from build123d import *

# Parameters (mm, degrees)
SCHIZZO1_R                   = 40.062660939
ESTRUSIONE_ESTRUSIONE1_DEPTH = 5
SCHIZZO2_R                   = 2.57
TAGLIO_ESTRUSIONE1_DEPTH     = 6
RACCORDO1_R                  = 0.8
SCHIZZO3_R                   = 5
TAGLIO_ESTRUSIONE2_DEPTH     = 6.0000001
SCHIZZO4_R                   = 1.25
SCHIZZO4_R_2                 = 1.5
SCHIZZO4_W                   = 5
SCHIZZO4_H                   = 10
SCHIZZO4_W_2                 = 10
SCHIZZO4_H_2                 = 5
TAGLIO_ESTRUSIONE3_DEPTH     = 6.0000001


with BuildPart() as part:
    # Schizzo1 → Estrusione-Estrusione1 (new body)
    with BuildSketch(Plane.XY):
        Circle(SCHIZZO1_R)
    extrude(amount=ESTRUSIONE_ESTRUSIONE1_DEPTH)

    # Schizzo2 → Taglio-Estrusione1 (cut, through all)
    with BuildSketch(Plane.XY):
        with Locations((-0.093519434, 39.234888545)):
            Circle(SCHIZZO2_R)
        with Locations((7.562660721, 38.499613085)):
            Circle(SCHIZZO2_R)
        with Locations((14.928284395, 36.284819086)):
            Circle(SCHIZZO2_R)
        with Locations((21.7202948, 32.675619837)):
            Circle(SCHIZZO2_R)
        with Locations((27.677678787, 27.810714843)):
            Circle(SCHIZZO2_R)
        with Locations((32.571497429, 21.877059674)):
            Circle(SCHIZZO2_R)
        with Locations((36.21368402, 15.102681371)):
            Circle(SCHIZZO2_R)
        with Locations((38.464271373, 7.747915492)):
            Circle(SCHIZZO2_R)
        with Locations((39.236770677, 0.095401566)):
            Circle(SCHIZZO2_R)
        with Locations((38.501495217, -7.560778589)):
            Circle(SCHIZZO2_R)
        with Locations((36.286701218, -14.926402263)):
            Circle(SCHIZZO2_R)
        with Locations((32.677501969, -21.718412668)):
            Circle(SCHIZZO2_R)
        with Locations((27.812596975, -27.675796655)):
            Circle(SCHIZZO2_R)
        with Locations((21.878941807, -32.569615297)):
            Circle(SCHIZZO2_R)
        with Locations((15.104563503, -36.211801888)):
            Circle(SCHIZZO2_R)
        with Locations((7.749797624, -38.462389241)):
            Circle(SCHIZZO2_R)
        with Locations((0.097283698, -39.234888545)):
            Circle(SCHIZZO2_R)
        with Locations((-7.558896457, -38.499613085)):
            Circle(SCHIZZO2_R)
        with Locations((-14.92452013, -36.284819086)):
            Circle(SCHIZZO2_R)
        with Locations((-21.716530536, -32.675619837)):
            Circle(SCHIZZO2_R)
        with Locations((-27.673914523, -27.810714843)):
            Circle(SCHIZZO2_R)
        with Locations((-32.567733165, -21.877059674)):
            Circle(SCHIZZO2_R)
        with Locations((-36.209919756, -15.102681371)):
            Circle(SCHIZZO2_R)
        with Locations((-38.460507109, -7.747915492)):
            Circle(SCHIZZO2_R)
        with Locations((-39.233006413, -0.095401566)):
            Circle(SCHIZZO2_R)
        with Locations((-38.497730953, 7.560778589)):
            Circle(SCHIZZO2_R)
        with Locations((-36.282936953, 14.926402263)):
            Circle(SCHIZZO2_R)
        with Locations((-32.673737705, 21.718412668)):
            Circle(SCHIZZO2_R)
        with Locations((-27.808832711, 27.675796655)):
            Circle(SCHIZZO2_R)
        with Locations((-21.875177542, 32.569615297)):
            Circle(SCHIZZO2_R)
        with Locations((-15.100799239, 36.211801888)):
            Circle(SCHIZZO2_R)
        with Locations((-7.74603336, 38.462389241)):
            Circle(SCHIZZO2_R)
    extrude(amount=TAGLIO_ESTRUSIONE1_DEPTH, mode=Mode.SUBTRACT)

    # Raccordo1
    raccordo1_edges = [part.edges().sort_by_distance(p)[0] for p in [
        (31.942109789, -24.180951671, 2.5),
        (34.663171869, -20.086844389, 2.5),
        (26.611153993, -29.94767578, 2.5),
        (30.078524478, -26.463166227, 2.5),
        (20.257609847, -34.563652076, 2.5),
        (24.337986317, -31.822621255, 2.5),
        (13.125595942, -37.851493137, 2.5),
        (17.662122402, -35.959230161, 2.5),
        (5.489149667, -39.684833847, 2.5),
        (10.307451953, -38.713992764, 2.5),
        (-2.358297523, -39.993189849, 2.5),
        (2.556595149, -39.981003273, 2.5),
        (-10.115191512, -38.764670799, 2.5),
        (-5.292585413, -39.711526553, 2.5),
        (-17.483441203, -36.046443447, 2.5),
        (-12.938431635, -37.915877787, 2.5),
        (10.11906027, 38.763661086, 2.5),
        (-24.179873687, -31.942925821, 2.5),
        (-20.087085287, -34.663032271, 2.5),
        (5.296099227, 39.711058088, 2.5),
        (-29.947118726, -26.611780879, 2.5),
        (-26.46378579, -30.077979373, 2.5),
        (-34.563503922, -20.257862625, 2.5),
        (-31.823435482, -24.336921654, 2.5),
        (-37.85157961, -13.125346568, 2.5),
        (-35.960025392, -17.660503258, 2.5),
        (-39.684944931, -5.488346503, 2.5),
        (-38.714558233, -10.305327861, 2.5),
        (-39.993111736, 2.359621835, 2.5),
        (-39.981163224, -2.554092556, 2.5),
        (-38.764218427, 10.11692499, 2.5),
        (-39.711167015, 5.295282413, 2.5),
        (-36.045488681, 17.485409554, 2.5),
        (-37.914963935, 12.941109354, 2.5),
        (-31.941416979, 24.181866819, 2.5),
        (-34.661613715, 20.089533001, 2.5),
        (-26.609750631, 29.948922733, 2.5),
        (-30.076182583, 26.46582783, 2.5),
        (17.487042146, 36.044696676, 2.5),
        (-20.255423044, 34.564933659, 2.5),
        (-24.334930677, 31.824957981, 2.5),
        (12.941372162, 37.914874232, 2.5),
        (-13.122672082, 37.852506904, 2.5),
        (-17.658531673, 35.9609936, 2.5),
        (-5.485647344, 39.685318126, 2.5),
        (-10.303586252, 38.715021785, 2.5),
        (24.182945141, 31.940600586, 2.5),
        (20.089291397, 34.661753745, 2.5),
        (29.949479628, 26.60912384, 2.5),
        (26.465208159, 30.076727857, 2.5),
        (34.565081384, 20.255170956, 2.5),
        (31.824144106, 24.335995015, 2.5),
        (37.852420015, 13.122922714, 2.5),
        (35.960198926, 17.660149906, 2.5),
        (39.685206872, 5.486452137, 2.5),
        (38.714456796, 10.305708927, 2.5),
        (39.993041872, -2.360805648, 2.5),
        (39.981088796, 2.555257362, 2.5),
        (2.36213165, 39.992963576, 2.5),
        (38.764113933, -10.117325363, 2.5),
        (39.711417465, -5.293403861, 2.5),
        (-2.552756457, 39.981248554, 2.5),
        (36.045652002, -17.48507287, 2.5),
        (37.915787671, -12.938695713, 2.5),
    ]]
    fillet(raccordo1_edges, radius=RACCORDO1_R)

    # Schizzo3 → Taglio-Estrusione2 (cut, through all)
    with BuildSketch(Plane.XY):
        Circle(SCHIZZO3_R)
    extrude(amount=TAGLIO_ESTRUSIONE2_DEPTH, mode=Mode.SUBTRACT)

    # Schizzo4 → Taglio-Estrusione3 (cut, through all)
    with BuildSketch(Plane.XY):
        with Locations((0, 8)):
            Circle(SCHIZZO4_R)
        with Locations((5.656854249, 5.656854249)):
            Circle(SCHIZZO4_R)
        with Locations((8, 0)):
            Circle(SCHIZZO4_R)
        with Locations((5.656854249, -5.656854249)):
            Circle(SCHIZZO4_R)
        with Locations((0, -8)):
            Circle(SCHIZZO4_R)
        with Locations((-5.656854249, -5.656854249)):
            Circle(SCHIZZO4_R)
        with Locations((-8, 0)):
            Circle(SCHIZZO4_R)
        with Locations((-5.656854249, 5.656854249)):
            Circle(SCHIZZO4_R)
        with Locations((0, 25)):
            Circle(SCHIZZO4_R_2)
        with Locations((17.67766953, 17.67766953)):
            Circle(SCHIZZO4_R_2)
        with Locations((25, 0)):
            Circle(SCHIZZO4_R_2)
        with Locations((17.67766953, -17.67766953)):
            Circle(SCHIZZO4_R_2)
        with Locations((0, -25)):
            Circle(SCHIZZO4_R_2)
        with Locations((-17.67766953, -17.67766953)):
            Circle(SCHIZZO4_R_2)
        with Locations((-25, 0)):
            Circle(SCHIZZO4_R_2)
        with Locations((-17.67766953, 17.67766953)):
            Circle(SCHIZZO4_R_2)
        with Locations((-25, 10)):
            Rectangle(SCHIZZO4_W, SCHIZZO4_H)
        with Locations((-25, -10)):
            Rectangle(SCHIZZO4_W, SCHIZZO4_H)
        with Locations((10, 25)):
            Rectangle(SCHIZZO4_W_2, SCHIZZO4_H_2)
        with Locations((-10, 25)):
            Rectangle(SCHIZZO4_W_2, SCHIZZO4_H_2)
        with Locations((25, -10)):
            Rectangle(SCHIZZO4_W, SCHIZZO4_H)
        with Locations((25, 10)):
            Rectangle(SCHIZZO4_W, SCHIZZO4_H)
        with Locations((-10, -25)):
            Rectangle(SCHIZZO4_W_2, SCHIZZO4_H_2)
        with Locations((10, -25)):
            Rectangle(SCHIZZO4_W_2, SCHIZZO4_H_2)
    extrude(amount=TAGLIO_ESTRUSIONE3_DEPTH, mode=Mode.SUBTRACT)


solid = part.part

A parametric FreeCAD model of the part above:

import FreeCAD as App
import Part
import Sketcher
from FreeCAD import Vector


def edges_at(feature, points):
    """Names of the edges that pass closest to the given points."""
    edges = feature.Shape.Edges
    near = lambda p: min(range(len(edges)), key=lambda i: edges[i].distToShape(Part.Vertex(*p))[0])
    return sorted({f"Edge{near(p) + 1}" for p in points})


def add_polygon(sketch, points):
    """Adds a closed chain of lines whose ends are joined by coincident constraints."""
    first, n = sketch.GeometryCount, len(points)
    for a, b in zip(points, points[1:] + points[:1]):
        sketch.addGeometry(Part.LineSegment(App.Vector(*a, 0), App.Vector(*b, 0)), False)
    for i in range(n):
        sketch.addConstraint(Sketcher.Constraint("Coincident", first + i, 2, first + (i + 1) % n, 1))

doc = App.newDocument("Part")
body = doc.addObject("PartDesign::Body", "Body")

# Sketch on XY plane
sketch1 = body.newObject("Sketcher::SketchObject", "Sketch")
sketch1.AttachmentSupport = (doc.getObject("XY_Plane"), [""])
sketch1.MapMode = "FlatFace"
sketch1.addGeometry(Part.Circle(Vector(0, 0, 0), Vector(0, 0, 1), 40), False)
sketch1.addConstraint([
    Sketcher.Constraint("Coincident", 0, 3, -1, 1),
    Sketcher.Constraint("Diameter", 0, 80.125322),
])
pad1 = body.newObject("PartDesign::Pad", "Pad")
pad1.Profile = sketch1
pad1.Length = 5

# Sketch on XY plane
sketch2 = body.newObject("Sketcher::SketchObject", "Sketch001")
sketch2.AttachmentSupport = (doc.getObject("XY_Plane"), [""])
sketch2.MapMode = "FlatFace"
sketch2.addGeometry([
    Part.Circle(Vector(-0.1, 39.2, 0), Vector(0, 0, 1), 2.6),  # 0
    Part.Circle(Vector(7.6, 38.5, 0), Vector(0, 0, 1), 2.6),  # 1
    Part.Circle(Vector(14.9, 36.3, 0), Vector(0, 0, 1), 2.6),  # 2
    Part.Circle(Vector(21.7, 32.7, 0), Vector(0, 0, 1), 2.6),  # 3
    Part.Circle(Vector(27.7, 27.8, 0), Vector(0, 0, 1), 2.6),  # 4
    Part.Circle(Vector(32.6, 21.9, 0), Vector(0, 0, 1), 2.6),  # 5
    Part.Circle(Vector(36.2, 15.1, 0), Vector(0, 0, 1), 2.6),  # 6
    Part.Circle(Vector(38.5, 7.7, 0), Vector(0, 0, 1), 2.6),  # 7
    Part.Circle(Vector(39.2, 0.1, 0), Vector(0, 0, 1), 2.6),  # 8
    Part.Circle(Vector(38.5, -7.6, 0), Vector(0, 0, 1), 2.6),  # 9
    Part.Circle(Vector(36.3, -14.9, 0), Vector(0, 0, 1), 2.6),  # 10
    Part.Circle(Vector(32.7, -21.7, 0), Vector(0, 0, 1), 2.6),  # 11
    Part.Circle(Vector(27.8, -27.7, 0), Vector(0, 0, 1), 2.6),  # 12
    Part.Circle(Vector(21.9, -32.6, 0), Vector(0, 0, 1), 2.6),  # 13
    Part.Circle(Vector(15.1, -36.2, 0), Vector(0, 0, 1), 2.6),  # 14
    Part.Circle(Vector(7.7, -38.5, 0), Vector(0, 0, 1), 2.6),  # 15
    Part.Circle(Vector(0.1, -39.2, 0), Vector(0, 0, 1), 2.6),  # 16
    Part.Circle(Vector(-7.6, -38.5, 0), Vector(0, 0, 1), 2.6),  # 17
    Part.Circle(Vector(-14.9, -36.3, 0), Vector(0, 0, 1), 2.6),  # 18
    Part.Circle(Vector(-21.7, -32.7, 0), Vector(0, 0, 1), 2.6),  # 19
    Part.Circle(Vector(-27.7, -27.8, 0), Vector(0, 0, 1), 2.6),  # 20
    Part.Circle(Vector(-32.6, -21.9, 0), Vector(0, 0, 1), 2.6),  # 21
    Part.Circle(Vector(-36.2, -15.1, 0), Vector(0, 0, 1), 2.6),  # 22
    Part.Circle(Vector(-38.5, -7.7, 0), Vector(0, 0, 1), 2.6),  # 23
    Part.Circle(Vector(-39.2, -0.1, 0), Vector(0, 0, 1), 2.6),  # 24
    Part.Circle(Vector(-38.5, 7.6, 0), Vector(0, 0, 1), 2.6),  # 25
    Part.Circle(Vector(-36.3, 14.9, 0), Vector(0, 0, 1), 2.6),  # 26
    Part.Circle(Vector(-32.7, 21.7, 0), Vector(0, 0, 1), 2.6),  # 27
    Part.Circle(Vector(-27.8, 27.7, 0), Vector(0, 0, 1), 2.6),  # 28
    Part.Circle(Vector(-21.9, 32.6, 0), Vector(0, 0, 1), 2.6),  # 29
    Part.Circle(Vector(-15.1, 36.2, 0), Vector(0, 0, 1), 2.6),  # 30
    Part.Circle(Vector(-7.7, 38.5, 0), Vector(0, 0, 1), 2.6),  # 31
], False)
sketch2.addConstraint([
    Sketcher.Constraint("Equal", 0, 1),
    Sketcher.Constraint("Equal", 1, 2),
    Sketcher.Constraint("Equal", 2, 3),
    Sketcher.Constraint("Equal", 3, 4),
    Sketcher.Constraint("Equal", 4, 5),
    Sketcher.Constraint("Equal", 5, 6),
    Sketcher.Constraint("Equal", 6, 7),
    Sketcher.Constraint("Equal", 7, 8),
    Sketcher.Constraint("Equal", 8, 9),
    Sketcher.Constraint("Equal", 9, 10),
    Sketcher.Constraint("Equal", 10, 11),
    Sketcher.Constraint("Equal", 11, 12),
    Sketcher.Constraint("Equal", 12, 13),
    Sketcher.Constraint("Equal", 13, 14),
    Sketcher.Constraint("Equal", 14, 15),
    Sketcher.Constraint("Equal", 15, 16),
    Sketcher.Constraint("Equal", 16, 17),
    Sketcher.Constraint("Equal", 17, 18),
    Sketcher.Constraint("Equal", 18, 19),
    Sketcher.Constraint("Equal", 19, 20),
    Sketcher.Constraint("Equal", 20, 21),
    Sketcher.Constraint("Equal", 21, 22),
    Sketcher.Constraint("Equal", 22, 23),
    Sketcher.Constraint("Equal", 23, 24),
    Sketcher.Constraint("Equal", 24, 25),
    Sketcher.Constraint("Equal", 25, 26),
    Sketcher.Constraint("Equal", 26, 27),
    Sketcher.Constraint("Equal", 27, 28),
    Sketcher.Constraint("Equal", 28, 29),
    Sketcher.Constraint("Equal", 29, 30),
    Sketcher.Constraint("Equal", 30, 31),
    Sketcher.Constraint("Diameter", 0, 5.14),
    Sketcher.Constraint("DistanceY", -1, 1, 8, 3, 0.095402),
    Sketcher.Constraint("DistanceX", -1, 1, 10, 3, 36.286701),
    Sketcher.Constraint("DistanceX", -1, 1, 11, 3, 32.677502),
    Sketcher.Constraint("DistanceY", 14, 3, -1, 1, 36.211802),
    Sketcher.Constraint("DistanceY", 24, 3, -1, 1, 0.095402),
    Sketcher.Constraint("DistanceX", 30, 3, -1, 1, 15.100799),
    Sketcher.Constraint("DistanceY", -1, 1, 30, 3, 36.211802),
    Sketcher.Constraint("DistanceY", 3, 3, 2, 3, 3.609199),
    Sketcher.Constraint("DistanceY", 4, 3, 1, 3, 10.688898),
    Sketcher.Constraint("DistanceX", 0, 3, 4, 3, 27.771198),
    Sketcher.Constraint("DistanceX", 2, 3, 6, 3, 21.2854),
    Sketcher.Constraint("DistanceY", 7, 3, 4, 3, 20.062799),
    Sketcher.Constraint("DistanceX", 7, 3, 8, 3, 0.772499),
    Sketcher.Constraint("DistanceX", 12, 3, 9, 3, 10.688898),
    Sketcher.Constraint("DistanceY", 12, 3, 8, 3, 27.771198),
    Sketcher.Constraint("DistanceY", 14, 3, 10, 3, 21.2854),
    Sketcher.Constraint("DistanceX", 15, 3, 12, 3, 20.062799),
    Sketcher.Constraint("DistanceY", 16, 3, 15, 3, 0.772499),
    Sketcher.Constraint("DistanceY", 18, 3, 19, 3, 3.609199),
    Sketcher.Constraint("DistanceY", 17, 3, 20, 3, 10.688898),
    Sketcher.Constraint("DistanceX", 20, 3, 16, 3, 27.771198),
    Sketcher.Constraint("DistanceX", 22, 3, 18, 3, 21.2854),
    Sketcher.Constraint("DistanceY", 20, 3, 23, 3, 20.062799),
    Sketcher.Constraint("DistanceX", 24, 3, 23, 3, 0.772499),
    Sketcher.Constraint("DistanceX", 26, 3, 27, 3, 3.609199),
    Sketcher.Constraint("DistanceX", 25, 3, 28, 3, 10.688898),
    Sketcher.Constraint("DistanceY", 24, 3, 28, 3, 27.771198),
    Sketcher.Constraint("DistanceY", 31, 3, 0, 3, 0.772499),
    Sketcher.Constraint("DistanceX", 28, 3, 31, 3, 20.062799),
    Sketcher.Constraint("DistanceX", 0, 3, -1, 1, 0.093519),
    Sketcher.Constraint("DistanceY", -1, 1, 0, 3, 39.234889),
    Sketcher.Constraint("DistanceX", -1, 1, 1, 3, 7.562661),
    Sketcher.Constraint("DistanceY", -1, 1, 2, 3, 36.284819),
    Sketcher.Constraint("DistanceY", -1, 1, 5, 3, 21.87706),
    Sketcher.Constraint("DistanceY", -1, 1, 6, 3, 15.102681),
    Sketcher.Constraint("DistanceX", -1, 1, 7, 3, 38.464271),
    Sketcher.Constraint("DistanceY", 9, 3, -1, 1, 7.560779),
    Sketcher.Constraint("DistanceX", -1, 1, 13, 3, 21.878942),
    Sketcher.Constraint("DistanceY", 15, 3, -1, 1, 38.462389),
    Sketcher.Constraint("DistanceX", 18, 3, -1, 1, 14.92452),
    Sketcher.Constraint("DistanceY", 18, 3, -1, 1, 36.284819),
    Sketcher.Constraint("DistanceX", 19, 3, -1, 1, 21.716531),
    Sketcher.Constraint("DistanceY", 21, 3, -1, 1, 21.87706),
    Sketcher.Constraint("DistanceY", 22, 3, -1, 1, 15.102681),
    Sketcher.Constraint("DistanceX", 25, 3, -1, 1, 38.497731),
    Sketcher.Constraint("DistanceY", -1, 1, 25, 3, 7.560779),
    Sketcher.Constraint("DistanceX", 2, 3, 3, 3, 6.79201),
    Sketcher.Constraint("DistanceX", 4, 3, 5, 3, 4.893819),
    Sketcher.Constraint("DistanceY", 6, 3, 1, 3, 23.396932),
    Sketcher.Constraint("DistanceX", 6, 3, 9, 3, 2.287811),
    Sketcher.Constraint("DistanceY", 11, 3, 10, 3, 6.79201),
    Sketcher.Constraint("DistanceY", 13, 3, 12, 3, 4.893819),
    Sketcher.Constraint("DistanceX", 14, 3, 13, 3, 6.774378),
    Sketcher.Constraint("DistanceX", 14, 3, 9, 3, 23.396932),
    Sketcher.Constraint("DistanceX", 16, 3, 14, 3, 15.00728),
    Sketcher.Constraint("DistanceX", 17, 3, 16, 3, 7.65618),
    Sketcher.Constraint("DistanceY", 17, 3, 14, 3, 2.287811),
    Sketcher.Constraint("DistanceX", 21, 3, 20, 3, 4.893819),
    Sketcher.Constraint("DistanceX", 24, 3, 20, 3, 11.559092),
    Sketcher.Constraint("DistanceX", 24, 3, 26, 3, 2.950069),
    Sketcher.Constraint("DistanceY", 21, 3, 26, 3, 36.803462),
    Sketcher.Constraint("DistanceY", 26, 3, 27, 3, 6.79201),
    Sketcher.Constraint("DistanceY", 28, 3, 29, 3, 4.893819),
    Sketcher.Constraint("DistanceX", 27, 3, 29, 3, 10.79856),
])
pocket1 = body.newObject("PartDesign::Pocket", "Pocket")
pocket1.Profile = sketch2
pocket1.Type = "ThroughAll"
pocket1.Reversed = True
doc.recompute()

fillet = body.newObject("PartDesign::Fillet", "Fillet")
fillet.Base = (pocket1, edges_at(pocket1, [
    (31.942, -24.181, 2.5),
    (34.663, -20.087, 2.5),
    (26.611, -29.948, 2.5),
    (30.079, -26.463, 2.5),
    (20.258, -34.564, 2.5),
    (24.338, -31.823, 2.5),
    (13.126, -37.851, 2.5),
    (17.662, -35.959, 2.5),
    (5.489, -39.685, 2.5),
    (10.307, -38.714, 2.5),
    (-2.358, -39.993, 2.5),
    (2.557, -39.981, 2.5),
    (-10.115, -38.765, 2.5),
    (-5.293, -39.712, 2.5),
    (-17.483, -36.046, 2.5),
    (-12.938, -37.916, 2.5),
    (10.119, 38.764, 2.5),
    (-24.18, -31.943, 2.5),
    (-20.087, -34.663, 2.5),
    (5.296, 39.711, 2.5),
    (-29.947, -26.612, 2.5),
    (-26.464, -30.078, 2.5),
    (-34.564, -20.258, 2.5),
    (-31.823, -24.337, 2.5),
    (-37.852, -13.125, 2.5),
    (-35.96, -17.661, 2.5),
    (-39.685, -5.488, 2.5),
    (-38.715, -10.305, 2.5),
    (-39.993, 2.36, 2.5),
    (-39.981, -2.554, 2.5),
    (-38.764, 10.117, 2.5),
    (-39.711, 5.295, 2.5),
    (-36.045, 17.485, 2.5),
    (-37.915, 12.941, 2.5),
    (-31.941, 24.182, 2.5),
    (-34.662, 20.09, 2.5),
    (-26.61, 29.949, 2.5),
    (-30.076, 26.466, 2.5),
    (17.487, 36.045, 2.5),
    (-20.255, 34.565, 2.5),
    (-24.335, 31.825, 2.5),
    (12.941, 37.915, 2.5),
    (-13.123, 37.853, 2.5),
    (-17.659, 35.961, 2.5),
    (-5.486, 39.685, 2.5),
    (-10.304, 38.715, 2.5),
    (24.183, 31.941, 2.5),
    (20.089, 34.662, 2.5),
    (29.949, 26.609, 2.5),
    (26.465, 30.077, 2.5),
    (34.565, 20.255, 2.5),
    (31.824, 24.336, 2.5),
    (37.852, 13.123, 2.5),
    (35.96, 17.66, 2.5),
    (39.685, 5.486, 2.5),
    (38.714, 10.306, 2.5),
    (39.993, -2.361, 2.5),
    (39.981, 2.555, 2.5),
    (2.362, 39.993, 2.5),
    (38.764, -10.117, 2.5),
    (39.711, -5.293, 2.5),
    (-2.553, 39.981, 2.5),
    (36.046, -17.485, 2.5),
    (37.916, -12.939, 2.5),
]))
fillet.Radius = 0.8

# Sketch on XY plane
sketch3 = body.newObject("Sketcher::SketchObject", "Sketch002")
sketch3.AttachmentSupport = (doc.getObject("XY_Plane"), [""])
sketch3.MapMode = "FlatFace"
sketch3.addGeometry(Part.Circle(Vector(0, 0, 0), Vector(0, 0, 1), 5), False)
sketch3.addConstraint([
    Sketcher.Constraint("Coincident", 0, 3, -1, 1),
    Sketcher.Constraint("Diameter", 0, 10.0),
])
pocket2 = body.newObject("PartDesign::Pocket", "Pocket001")
pocket2.Profile = sketch3
pocket2.Type = "ThroughAll"
pocket2.Reversed = True

# Sketch on XY plane
sketch4 = body.newObject("Sketcher::SketchObject", "Sketch003")
sketch4.AttachmentSupport = (doc.getObject("XY_Plane"), [""])
sketch4.MapMode = "FlatFace"
sketch4.addGeometry(Part.Circle(Vector(0, 8, 0), Vector(0, 0, 1), 1.2), False)  # 0
sketch4.addGeometry(Part.Circle(Vector(5.7, 5.7, 0), Vector(0, 0, 1), 1.2), False)  # 1
sketch4.addGeometry(Part.Circle(Vector(8, 0, 0), Vector(0, 0, 1), 1.2), False)  # 2
sketch4.addGeometry(Part.Circle(Vector(5.7, -5.7, 0), Vector(0, 0, 1), 1.2), False)  # 3
sketch4.addGeometry(Part.Circle(Vector(0, -8, 0), Vector(0, 0, 1), 1.2), False)  # 4
sketch4.addGeometry(Part.Circle(Vector(-5.7, -5.7, 0), Vector(0, 0, 1), 1.2), False)  # 5
sketch4.addGeometry(Part.Circle(Vector(-8, 0, 0), Vector(0, 0, 1), 1.2), False)  # 6
sketch4.addGeometry(Part.Circle(Vector(-5.7, 5.7, 0), Vector(0, 0, 1), 1.2), False)  # 7
sketch4.addGeometry(Part.Circle(Vector(0, 25, 0), Vector(0, 0, 1), 1.5), False)  # 8
sketch4.addGeometry(Part.Circle(Vector(17.7, 17.7, 0), Vector(0, 0, 1), 1.5), False)  # 9
sketch4.addGeometry(Part.Circle(Vector(25, 0, 0), Vector(0, 0, 1), 1.5), False)  # 10
sketch4.addGeometry(Part.Circle(Vector(17.7, -17.7, 0), Vector(0, 0, 1), 1.5), False)  # 11
sketch4.addGeometry(Part.Circle(Vector(0, -25, 0), Vector(0, 0, 1), 1.5), False)  # 12
sketch4.addGeometry(Part.Circle(Vector(-17.7, -17.7, 0), Vector(0, 0, 1), 1.5), False)  # 13
sketch4.addGeometry(Part.Circle(Vector(-25, 0, 0), Vector(0, 0, 1), 1.5), False)  # 14
sketch4.addGeometry(Part.Circle(Vector(-17.7, 17.7, 0), Vector(0, 0, 1), 1.5), False)  # 15
add_polygon(sketch4, [(-27.5, 15), (-27.5, 5), (-22.5, 5), (-22.5, 15)])  # lines 16-19
add_polygon(sketch4, [(-27.5, -5), (-27.5, -15), (-22.5, -15), (-22.5, -5)])  # lines 20-23
add_polygon(sketch4, [(5, 27.5), (5, 22.5), (15, 22.5), (15, 27.5)])  # lines 24-27
add_polygon(sketch4, [(-15, 27.5), (-15, 22.5), (-5, 22.5), (-5, 27.5)])  # lines 28-31
add_polygon(sketch4, [(22.5, -5), (22.5, -15), (27.5, -15), (27.5, -5)])  # lines 32-35
add_polygon(sketch4, [(22.5, 15), (22.5, 5), (27.5, 5), (27.5, 15)])  # lines 36-39
add_polygon(sketch4, [(-15, -22.5), (-15, -27.5), (-5, -27.5), (-5, -22.5)])  # lines 40-43
add_polygon(sketch4, [(5, -22.5), (5, -27.5), (15, -27.5), (15, -22.5)])  # lines 44-47
sketch4.addConstraint([
    Sketcher.Constraint("Vertical", 16),
    Sketcher.Constraint("Horizontal", 17),
    Sketcher.Constraint("Vertical", 18),
    Sketcher.Constraint("Horizontal", 19),
    Sketcher.Constraint("Vertical", 20),
    Sketcher.Constraint("Horizontal", 21),
    Sketcher.Constraint("Vertical", 22),
    Sketcher.Constraint("Horizontal", 23),
    Sketcher.Constraint("Vertical", 24),
    Sketcher.Constraint("Horizontal", 25),
    Sketcher.Constraint("Vertical", 26),
    Sketcher.Constraint("Horizontal", 27),
    Sketcher.Constraint("Vertical", 28),
    Sketcher.Constraint("Horizontal", 29),
    Sketcher.Constraint("Vertical", 30),
    Sketcher.Constraint("Horizontal", 31),
    Sketcher.Constraint("Vertical", 32),
    Sketcher.Constraint("Horizontal", 33),
    Sketcher.Constraint("Vertical", 34),
    Sketcher.Constraint("Horizontal", 35),
    Sketcher.Constraint("Vertical", 36),
    Sketcher.Constraint("Horizontal", 37),
    Sketcher.Constraint("Vertical", 38),
    Sketcher.Constraint("Horizontal", 39),
    Sketcher.Constraint("Vertical", 40),
    Sketcher.Constraint("Horizontal", 41),
    Sketcher.Constraint("Vertical", 42),
    Sketcher.Constraint("Horizontal", 43),
    Sketcher.Constraint("Vertical", 44),
    Sketcher.Constraint("Horizontal", 45),
    Sketcher.Constraint("Vertical", 46),
    Sketcher.Constraint("Horizontal", 47),
    Sketcher.Constraint("Equal", 0, 1),
    Sketcher.Constraint("Equal", 1, 2),
    Sketcher.Constraint("Equal", 2, 3),
    Sketcher.Constraint("Equal", 3, 4),
    Sketcher.Constraint("Equal", 4, 5),
    Sketcher.Constraint("Equal", 5, 6),
    Sketcher.Constraint("Equal", 6, 7),
    Sketcher.Constraint("Equal", 8, 9),
    Sketcher.Constraint("Equal", 9, 10),
    Sketcher.Constraint("Equal", 10, 11),
    Sketcher.Constraint("Equal", 11, 12),
    Sketcher.Constraint("Equal", 12, 13),
    Sketcher.Constraint("Equal", 13, 14),
    Sketcher.Constraint("Equal", 14, 15),
    Sketcher.Constraint("Symmetric", 0, 3, 4, 3, -1, 1),
    Sketcher.Constraint("Symmetric", 1, 3, 5, 3, -1, 1),
    Sketcher.Constraint("Symmetric", 2, 3, 6, 3, -1, 1),
    Sketcher.Constraint("Symmetric", 3, 3, 7, 3, -1, 1),
    Sketcher.Constraint("Symmetric", 8, 3, 12, 3, -1, 1),
    Sketcher.Constraint("Symmetric", 9, 3, 13, 3, -1, 1),
    Sketcher.Constraint("Symmetric", 10, 3, 14, 3, -1, 1),
    Sketcher.Constraint("Symmetric", 11, 3, 15, 3, -1, 1),
    Sketcher.Constraint("Symmetric", 18, 2, 32, 2, -1, 1),
    Sketcher.Constraint("Symmetric", 16, 2, 34, 2, -1, 1),
    Sketcher.Constraint("Symmetric", 22, 2, 36, 2, -1, 1),
    Sketcher.Constraint("Symmetric", 20, 2, 38, 2, -1, 1),
    Sketcher.Constraint("Symmetric", 26, 2, 40, 2, -1, 1),
    Sketcher.Constraint("Symmetric", 24, 2, 42, 2, -1, 1),
    Sketcher.Constraint("Symmetric", 30, 2, 44, 2, -1, 1),
    Sketcher.Constraint("Symmetric", 28, 2, 46, 2, -1, 1),
    Sketcher.Constraint("Symmetric", 3, 3, 5, 3, -2),
    Sketcher.Constraint("Symmetric", 11, 3, 13, 3, -2),
    Sketcher.Constraint("Symmetric", 25, 2, 28, 2, -2),
    Sketcher.Constraint("Symmetric", 27, 2, 30, 2, -2),
    Sketcher.Constraint("Symmetric", 21, 2, 32, 2, -2),
    Sketcher.Constraint("Symmetric", 23, 2, 34, 2, -2),
    Sketcher.Constraint("PointOnObject", 0, 3, -2),
    Sketcher.Constraint("PointOnObject", 2, 3, -1),
    Sketcher.Constraint("PointOnObject", 8, 3, -2),
    Sketcher.Constraint("PointOnObject", 10, 3, -1),
    Sketcher.Constraint("Equal", 47, 16),
    Sketcher.Constraint("Equal", 39, 24),
    Sketcher.Constraint("Diameter", 8, 3.0),
    Sketcher.Constraint("Diameter", 0, 2.5),
    Sketcher.Constraint("DistanceX", 17, 1, 17, 2, 5.0),
    Sketcher.Constraint("DistanceX", 25, 1, 25, 2, 10.0),
    Sketcher.Constraint("DistanceY", -1, 1, 0, 3, 8.0),
    Sketcher.Constraint("DistanceX", -1, 1, 2, 3, 8.0),
    Sketcher.Constraint("DistanceY", -1, 1, 8, 3, 25.0),
    Sketcher.Constraint("DistanceX", -1, 1, 10, 3, 25.0),
    Sketcher.Constraint("DistanceY", -1, 1, 16, 2, 5.0),
    Sketcher.Constraint("DistanceX", -1, 1, 24, 2, 5.0),
    Sketcher.Constraint("DistanceX", 16, 2, -1, 1, 27.5),
    Sketcher.Constraint("DistanceY", -1, 1, 24, 2, 22.5),
    Sketcher.Constraint("DistanceX", -1, 1, 9, 3, 17.67767),
    Sketcher.Constraint("DistanceY", -1, 1, 9, 3, 17.67767),
    Sketcher.Constraint("DistanceY", 3, 3, 1, 3, 11.313708),
    Sketcher.Constraint("DistanceX", 5, 3, 3, 3, 11.313708),
])
pocket3 = body.newObject("PartDesign::Pocket", "Pocket002")
pocket3.Profile = sketch4
pocket3.Type = "ThroughAll"
pocket3.Reversed = True

doc.recompute()
